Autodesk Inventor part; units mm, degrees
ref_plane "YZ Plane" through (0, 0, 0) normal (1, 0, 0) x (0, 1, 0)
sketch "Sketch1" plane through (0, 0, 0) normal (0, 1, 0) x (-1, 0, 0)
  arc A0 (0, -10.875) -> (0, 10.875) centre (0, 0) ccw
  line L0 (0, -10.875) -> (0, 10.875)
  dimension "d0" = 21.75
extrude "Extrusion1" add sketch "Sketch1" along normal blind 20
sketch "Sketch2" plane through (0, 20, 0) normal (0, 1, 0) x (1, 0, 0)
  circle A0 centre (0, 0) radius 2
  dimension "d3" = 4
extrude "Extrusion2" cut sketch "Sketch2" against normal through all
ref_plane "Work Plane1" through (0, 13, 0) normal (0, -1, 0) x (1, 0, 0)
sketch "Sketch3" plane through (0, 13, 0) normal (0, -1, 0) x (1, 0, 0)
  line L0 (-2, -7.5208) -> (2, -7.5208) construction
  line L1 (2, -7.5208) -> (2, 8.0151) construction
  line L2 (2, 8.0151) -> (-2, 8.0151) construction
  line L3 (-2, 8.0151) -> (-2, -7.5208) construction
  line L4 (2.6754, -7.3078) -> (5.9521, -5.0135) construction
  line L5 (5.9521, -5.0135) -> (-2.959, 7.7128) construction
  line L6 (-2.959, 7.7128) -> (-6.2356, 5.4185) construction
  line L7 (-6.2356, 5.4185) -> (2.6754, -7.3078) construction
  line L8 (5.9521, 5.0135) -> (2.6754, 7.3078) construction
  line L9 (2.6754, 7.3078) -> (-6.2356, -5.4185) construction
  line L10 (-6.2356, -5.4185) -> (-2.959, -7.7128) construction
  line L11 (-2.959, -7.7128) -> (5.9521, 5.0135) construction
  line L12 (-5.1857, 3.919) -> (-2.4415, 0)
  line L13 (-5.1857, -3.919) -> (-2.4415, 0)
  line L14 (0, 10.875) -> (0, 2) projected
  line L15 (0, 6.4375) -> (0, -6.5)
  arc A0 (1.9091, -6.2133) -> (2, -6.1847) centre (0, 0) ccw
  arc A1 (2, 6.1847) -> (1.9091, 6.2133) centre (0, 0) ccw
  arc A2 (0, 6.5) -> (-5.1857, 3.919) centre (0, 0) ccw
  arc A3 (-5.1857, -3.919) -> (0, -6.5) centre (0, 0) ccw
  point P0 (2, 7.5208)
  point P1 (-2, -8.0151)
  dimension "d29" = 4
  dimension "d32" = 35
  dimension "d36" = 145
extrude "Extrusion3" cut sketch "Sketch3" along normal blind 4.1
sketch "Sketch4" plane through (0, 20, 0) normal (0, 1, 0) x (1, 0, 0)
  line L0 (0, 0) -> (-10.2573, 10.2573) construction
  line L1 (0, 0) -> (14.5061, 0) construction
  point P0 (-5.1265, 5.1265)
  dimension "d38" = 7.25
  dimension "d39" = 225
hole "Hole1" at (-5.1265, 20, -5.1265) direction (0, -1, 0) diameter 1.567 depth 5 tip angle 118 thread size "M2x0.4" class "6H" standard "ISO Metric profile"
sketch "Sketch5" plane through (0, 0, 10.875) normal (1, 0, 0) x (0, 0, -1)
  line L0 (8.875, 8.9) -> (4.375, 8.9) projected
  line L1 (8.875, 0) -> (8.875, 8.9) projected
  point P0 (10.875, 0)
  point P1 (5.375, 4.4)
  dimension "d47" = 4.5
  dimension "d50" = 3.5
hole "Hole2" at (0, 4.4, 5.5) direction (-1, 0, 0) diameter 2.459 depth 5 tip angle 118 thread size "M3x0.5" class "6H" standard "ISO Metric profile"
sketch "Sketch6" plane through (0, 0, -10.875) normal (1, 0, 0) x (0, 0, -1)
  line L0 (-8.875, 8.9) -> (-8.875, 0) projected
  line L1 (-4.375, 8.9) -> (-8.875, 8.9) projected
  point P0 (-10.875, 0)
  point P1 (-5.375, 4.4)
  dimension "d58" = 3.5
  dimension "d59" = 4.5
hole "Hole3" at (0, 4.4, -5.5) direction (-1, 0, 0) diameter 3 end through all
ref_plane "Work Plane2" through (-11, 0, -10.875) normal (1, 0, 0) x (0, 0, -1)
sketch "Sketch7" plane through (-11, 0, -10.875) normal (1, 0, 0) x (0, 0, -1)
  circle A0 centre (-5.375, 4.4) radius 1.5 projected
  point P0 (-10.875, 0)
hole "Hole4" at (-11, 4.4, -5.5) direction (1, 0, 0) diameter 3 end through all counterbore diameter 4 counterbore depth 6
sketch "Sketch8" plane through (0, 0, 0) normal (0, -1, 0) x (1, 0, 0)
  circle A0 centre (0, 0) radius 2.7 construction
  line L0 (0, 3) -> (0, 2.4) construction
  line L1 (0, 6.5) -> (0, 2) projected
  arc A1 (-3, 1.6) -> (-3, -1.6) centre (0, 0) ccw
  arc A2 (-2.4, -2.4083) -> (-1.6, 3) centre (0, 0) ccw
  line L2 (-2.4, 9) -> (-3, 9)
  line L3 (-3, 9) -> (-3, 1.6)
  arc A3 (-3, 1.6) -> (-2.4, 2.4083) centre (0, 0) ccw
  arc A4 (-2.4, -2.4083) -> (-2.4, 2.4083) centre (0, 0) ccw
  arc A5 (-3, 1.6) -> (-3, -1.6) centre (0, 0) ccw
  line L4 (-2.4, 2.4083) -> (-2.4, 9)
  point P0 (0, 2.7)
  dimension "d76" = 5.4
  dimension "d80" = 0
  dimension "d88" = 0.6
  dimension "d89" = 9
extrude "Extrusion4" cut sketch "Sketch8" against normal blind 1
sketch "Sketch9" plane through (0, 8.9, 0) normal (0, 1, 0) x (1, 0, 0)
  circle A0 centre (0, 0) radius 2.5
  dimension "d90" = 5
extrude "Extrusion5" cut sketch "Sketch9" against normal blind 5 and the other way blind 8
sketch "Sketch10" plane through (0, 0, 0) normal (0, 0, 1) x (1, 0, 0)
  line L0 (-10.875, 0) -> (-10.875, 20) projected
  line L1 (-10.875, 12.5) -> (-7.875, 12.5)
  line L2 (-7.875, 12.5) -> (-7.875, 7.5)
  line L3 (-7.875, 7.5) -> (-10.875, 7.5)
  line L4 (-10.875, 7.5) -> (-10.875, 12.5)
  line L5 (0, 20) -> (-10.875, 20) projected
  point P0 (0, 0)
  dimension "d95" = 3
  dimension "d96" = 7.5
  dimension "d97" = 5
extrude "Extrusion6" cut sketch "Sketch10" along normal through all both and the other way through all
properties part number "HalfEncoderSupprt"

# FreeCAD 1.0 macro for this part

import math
import FreeCAD as App
import Part
import Sketcher

V = App.Vector
Q = App.Units.Quantity

doc = App.newDocument("Part")
body = doc.addObject("PartDesign::Body", "Body")

# Sketch on XZ plane
sketch1 = doc.addObject("Sketcher::SketchObject", "Sketch")
body.addObject(sketch1)
sketch1.AttachmentSupport = (doc.XZ_Plane, [""])
sketch1.MapMode = "FlatFace"
sketch1.addGeometry(Part.LineSegment(V(0, 11, 0), V(0, -11, 0)), False)
sketch1.addGeometry(Part.ArcOfCircle(Part.Circle(V(0, 0, 0), V(0, 0, 1), 11), math.radians(90), math.radians(270)), False)
sketch1.addConstraint(Sketcher.Constraint("Coincident", 0, 1, 1, 1))
sketch1.addConstraint(Sketcher.Constraint("Coincident", 1, 2, 0, 2))
sketch1.addConstraint(Sketcher.Constraint("Vertical", 0))
sketch1.addConstraint(Sketcher.Constraint("Coincident", 1, 3, -1, 1))
sketch1.addConstraint(Sketcher.Constraint("PointOnObject", 0, 1, -2))
sketch1.addConstraint(Sketcher.Constraint("Radius", 1, 10.875))
pad1 = doc.addObject("PartDesign::Pad", "Pad")
body.addObject(pad1)
pad1.Profile = sketch1
pad1.Length = 20
pad1.Reversed = True

# Sketch on XZ plane
sketch2 = doc.addObject("Sketcher::SketchObject", "Sketch001")
body.addObject(sketch2)
sketch2.AttachmentSupport = (doc.XZ_Plane, [""])
sketch2.MapMode = "FlatFace"
sketch2.AttachmentOffset = App.Placement(V(0, 0, -20), App.Rotation())
sketch2.addGeometry(Part.Circle(V(0, 0, 0), V(0, 0, 1), 2), False)
sketch2.addConstraint(Sketcher.Constraint("Coincident", 0, 3, -1, 1))
sketch2.addConstraint(Sketcher.Constraint("Diameter", 0, 4.0))
pocket1 = doc.addObject("PartDesign::Pocket", "Pocket")
body.addObject(pocket1)
pocket1.Profile = sketch2
pocket1.Type = "ThroughAll"
pocket1.Reversed = True

# Sketch on XZ plane
sketch3 = doc.addObject("Sketcher::SketchObject", "Sketch002")
body.addObject(sketch3)
sketch3.AttachmentSupport = (doc.XZ_Plane, [""])
sketch3.MapMode = "FlatFace"
sketch3.AttachmentOffset = App.Placement(V(0, 0, -13), App.Rotation())
sketch3.addGeometry(Part.ArcOfCircle(Part.Circle(V(0, 0, 0), V(0, 0, 1), 6.5), math.radians(90), math.radians(143)), False)
sketch3.addGeometry(Part.LineSegment(V(-5.2, 3.9, 0), V(-2.4, 0, 0)), False)
sketch3.addGeometry(Part.LineSegment(V(-2.4, 0, 0), V(-5.2, -3.9, 0)), False)
sketch3.addGeometry(Part.ArcOfCircle(Part.Circle(V(0, 0, 0), V(0, 0, 1), 6.5), math.radians(-143), math.radians(-90)), False)
sketch3.addGeometry(Part.LineSegment(V(0, -6.5, 0), V(0, 6.5, 0)), False)
sketch3.addConstraint(Sketcher.Constraint("Coincident", 0, 2, 1, 1))
sketch3.addConstraint(Sketcher.Constraint("Coincident", 1, 2, 2, 1))
sketch3.addConstraint(Sketcher.Constraint("Coincident", 2, 2, 3, 1))
sketch3.addConstraint(Sketcher.Constraint("Coincident", 3, 2, 4, 1))
sketch3.addConstraint(Sketcher.Constraint("Coincident", 4, 2, 0, 1))
sketch3.addConstraint(Sketcher.Constraint("Vertical", 4))
sketch3.addConstraint(Sketcher.Constraint("Coincident", 0, 3, -1, 1))
sketch3.addConstraint(Sketcher.Constraint("Coincident", 3, 3, -1, 1))
sketch3.addConstraint(Sketcher.Constraint("Equal", 0, 3))
sketch3.addConstraint(Sketcher.Constraint("PointOnObject", 1, 2, -1))
sketch3.addConstraint(Sketcher.Constraint("PointOnObject", 3, 2, -2))
sketch3.addConstraint(Sketcher.Constraint("Vertical", 0, 2, 2, 2))
sketch3.addConstraint(Sketcher.Constraint("Radius", 0, 6.5))
sketch3.addConstraint(Sketcher.Constraint("Angle", 1, Q("-54.9991 deg")))
sketch3.addConstraint(Sketcher.Constraint("DistanceY", -1, 1, 0, 2, 3.919))
pocket2 = doc.addObject("PartDesign::Pocket", "Pocket001")
body.addObject(pocket2)
pocket2.Profile = sketch3
pocket2.Length = 4.1
pocket2.Reversed = True

# Sketch on XZ plane
sketch4 = doc.addObject("Sketcher::SketchObject", "Sketch003")
body.addObject(sketch4)
sketch4.AttachmentSupport = (doc.XZ_Plane, [""])
sketch4.MapMode = "FlatFace"
sketch4.AttachmentOffset = App.Placement(V(0, 0, -20), App.Rotation())
sketch4.addGeometry(Part.Circle(V(-5.1, -5.1, 0), V(0, 0, 1), 0.8), False)
sketch4.addConstraint(Sketcher.Constraint("Diameter", 0, 1.567))
sketch4.addConstraint(Sketcher.Constraint("DistanceX", 0, 3, -1, 1, 5.1265))
sketch4.addConstraint(Sketcher.Constraint("DistanceY", 0, 3, -1, 1, 5.1265))
doc.recompute()
hole = doc.addObject("PartDesign::Hole", "Hole")
body.addObject(hole)
hole.Profile = sketch4
hole.ThreadType = "None"
hole.Diameter = 1.567
hole.DepthType = "Dimension"
hole.Depth = 5
hole.DrillPoint = "Angled"
hole.DrillPointAngle = 118
hole.Reversed = True

# Sketch on YZ plane
sketch5 = doc.addObject("Sketcher::SketchObject", "Sketch004")
body.addObject(sketch5)
sketch5.AttachmentSupport = (doc.YZ_Plane, [""])
sketch5.MapMode = "FlatFace"
sketch5.addGeometry(Part.Circle(V(4.4, 5.5, 0), V(0, 0, 1), 1.2), False)
sketch5.addConstraint(Sketcher.Constraint("Diameter", 0, 2.459))
sketch5.addConstraint(Sketcher.Constraint("DistanceX", -1, 1, 0, 3, 4.4))
sketch5.addConstraint(Sketcher.Constraint("DistanceY", -1, 1, 0, 3, 5.5))
doc.recompute()
hole2 = doc.addObject("PartDesign::Hole", "Hole001")
body.addObject(hole2)
hole2.Profile = sketch5
hole2.ThreadType = "None"
hole2.Diameter = 2.459
hole2.DepthType = "Dimension"
hole2.Depth = 5
hole2.DrillPoint = "Angled"
hole2.DrillPointAngle = 118

# Sketch on YZ plane
sketch6 = doc.addObject("Sketcher::SketchObject", "Sketch005")
body.addObject(sketch6)
sketch6.AttachmentSupport = (doc.YZ_Plane, [""])
sketch6.MapMode = "FlatFace"
sketch6.addGeometry(Part.Circle(V(4.4, -5.5, 0), V(0, 0, 1), 1.5), False)
sketch6.addConstraint(Sketcher.Constraint("Diameter", 0, 3.0))
sketch6.addConstraint(Sketcher.Constraint("DistanceX", -1, 1, 0, 3, 4.4))
sketch6.addConstraint(Sketcher.Constraint("DistanceY", 0, 3, -1, 1, 5.5))
doc.recompute()
hole3 = doc.addObject("PartDesign::Hole", "Hole002")
body.addObject(hole3)
hole3.Profile = sketch6
hole3.ThreadType = "None"
hole3.Diameter = 3
hole3.DepthType = "ThroughAll"

# Sketch on YZ plane
sketch7 = doc.addObject("Sketcher::SketchObject", "Sketch006")
body.addObject(sketch7)
sketch7.AttachmentSupport = (doc.YZ_Plane, [""])
sketch7.MapMode = "FlatFace"
sketch7.AttachmentOffset = App.Placement(V(0, 0, -11), App.Rotation())
sketch7.addGeometry(Part.Circle(V(4.4, -5.5, 0), V(0, 0, 1), 1.5), False)
sketch7.addConstraint(Sketcher.Constraint("Diameter", 0, 3.0))
sketch7.addConstraint(Sketcher.Constraint("DistanceX", -1, 1, 0, 3, 4.4))
sketch7.addConstraint(Sketcher.Constraint("DistanceY", 0, 3, -1, 1, 5.5))
doc.recompute()
hole4 = doc.addObject("PartDesign::Hole", "Hole003")
body.addObject(hole4)
hole4.Profile = sketch7
hole4.ThreadType = "None"
hole4.Diameter = 3
hole4.DepthType = "ThroughAll"
hole4.HoleCutType = "Counterbore"
hole4.HoleCutDiameter = 4
hole4.HoleCutDepth = 6
hole4.Reversed = True

# Sketch on XZ plane
sketch8 = doc.addObject("Sketcher::SketchObject", "Sketch007")
body.addObject(sketch8)
sketch8.AttachmentSupport = (doc.XZ_Plane, [""])
sketch8.MapMode = "FlatFace"
sketch8.addGeometry(Part.LineSegment(V(-3, 9, 0), V(-3, 1.6, 0)), False)
sketch8.addGeometry(Part.ArcOfCircle(Part.Circle(V(0, 0, 0), V(0, 0, 1), 3.4), math.radians(152), math.radians(208)), False)
sketch8.addGeometry(Part.ArcOfCircle(Part.Circle(V(0, 0, 0), V(0, 0, 1), 3.4), math.radians(-151.93), math.radians(-134.9)), False)
sketch8.addGeometry(Part.ArcOfCircle(Part.Circle(V(0, 0, 0), V(0, 0, 1), 3.4), math.radians(-135), math.radians(118)), False)
sketch8.addGeometry(Part.ArcOfCircle(Part.Circle(V(0, 0, 0), V(0, 0, 1), 3.4), math.radians(118.07), math.radians(134.9)), False)
sketch8.addGeometry(Part.LineSegment(V(-2.4, 2.4, 0), V(-2.4, 9, 0)), False)
sketch8.addGeometry(Part.LineSegment(V(-2.4, 9, 0), V(-3, 9, 0)), False)
sketch8.addConstraint(Sketcher.Constraint("Coincident", 0, 2, 1, 1))
sketch8.addConstraint(Sketcher.Constraint("Tangent", 1, 2, 2, 1))
sketch8.addConstraint(Sketcher.Constraint("Tangent", 2, 2, 3, 1))
sketch8.addConstraint(Sketcher.Constraint("Tangent", 3, 2, 4, 1))
sketch8.addConstraint(Sketcher.Constraint("Coincident", 4, 2, 5, 1))
sketch8.addConstraint(Sketcher.Constraint("Coincident", 5, 2, 6, 1))
sketch8.addConstraint(Sketcher.Constraint("Coincident", 6, 2, 0, 1))
sketch8.addConstraint(Sketcher.Constraint("Vertical", 0))
sketch8.addConstraint(Sketcher.Constraint("Vertical", 5))
sketch8.addConstraint(Sketcher.Constraint("Horizontal", 6))
sketch8.addConstraint(Sketcher.Constraint("Coincident", 1, 3, -1, 1))
sketch8.addConstraint(Sketcher.Constraint("Coincident", 3, 3, -1, 1))
sketch8.addConstraint(Sketcher.Constraint("Equal", 3, 4))
sketch8.addConstraint(Sketcher.Constraint("Vertical", 0, 2, 1, 2))
sketch8.addConstraint(Sketcher.Constraint("Vertical", 2, 2, 4, 2))
sketch8.addConstraint(Sketcher.Constraint("DistanceX", 6, 2, 6, 1, 0.6))
sketch8.addConstraint(Sketcher.Constraint("DistanceY", -1, 1, 5, 2, 9.0))
sketch8.addConstraint(Sketcher.Constraint("Radius", 1, 3.4))
sketch8.addConstraint(Sketcher.Constraint("DistanceY", 0, 2, 0, 1, 7.4))
sketch8.addConstraint(Sketcher.Constraint("DistanceY", -1, 1, 3, 2, 3.0))
pocket3 = doc.addObject("PartDesign::Pocket", "Pocket002")
body.addObject(pocket3)
pocket3.Profile = sketch8
pocket3.Length = 1

# Sketch on XZ plane
sketch9 = doc.addObject("Sketcher::SketchObject", "Sketch008")
body.addObject(sketch9)
sketch9.AttachmentSupport = (doc.XZ_Plane, [""])
sketch9.MapMode = "FlatFace"
sketch9.AttachmentOffset = App.Placement(V(0, 0, -8.9), App.Rotation())
sketch9.addGeometry(Part.Circle(V(0, 0, 0), V(0, 0, 1), 2.5), False)
sketch9.addConstraint(Sketcher.Constraint("Coincident", 0, 3, -1, 1))
sketch9.addConstraint(Sketcher.Constraint("Diameter", 0, 5.0))
pocket4 = doc.addObject("PartDesign::Pocket", "Pocket003")
body.addObject(pocket4)
pocket4.Profile = sketch9
pocket4.Type = "TwoLengths"
pocket4.Length = 5
pocket4.Length2 = 8
pocket4.Reversed = True

# Sketch on XY plane
sketch10 = doc.addObject("Sketcher::SketchObject", "Sketch009")
body.addObject(sketch10)
sketch10.AttachmentSupport = (doc.XY_Plane, [""])
sketch10.MapMode = "FlatFace"
sketch10.addGeometry(Part.LineSegment(V(-10.9, 12.5, 0), V(-10.9, 7.5, 0)), False)
sketch10.addGeometry(Part.LineSegment(V(-10.9, 7.5, 0), V(-7.9, 7.5, 0)), False)
sketch10.addGeometry(Part.LineSegment(V(-7.9, 7.5, 0), V(-7.9, 12.5, 0)), False)
sketch10.addGeometry(Part.LineSegment(V(-7.9, 12.5, 0), V(-10.9, 12.5, 0)), False)
sketch10.addConstraint(Sketcher.Constraint("Coincident", 0, 2, 1, 1))
sketch10.addConstraint(Sketcher.Constraint("Coincident", 1, 2, 2, 1))
sketch10.addConstraint(Sketcher.Constraint("Coincident", 2, 2, 3, 1))
sketch10.addConstraint(Sketcher.Constraint("Coincident", 3, 2, 0, 1))
sketch10.addConstraint(Sketcher.Constraint("Vertical", 0))
sketch10.addConstraint(Sketcher.Constraint("Horizontal", 1))
sketch10.addConstraint(Sketcher.Constraint("Vertical", 2))
sketch10.addConstraint(Sketcher.Constraint("Horizontal", 3))
sketch10.addConstraint(Sketcher.Constraint("DistanceX", 1, 1, 1, 2, 3.0))
sketch10.addConstraint(Sketcher.Constraint("DistanceY", 0, 2, 0, 1, 5.0))
sketch10.addConstraint(Sketcher.Constraint("DistanceY", -1, 1, 0, 2, 7.5))
sketch10.addConstraint(Sketcher.Constraint("DistanceX", 0, 2, -1, 1, 10.875))
pocket5 = doc.addObject("PartDesign::Pocket", "Pocket004")
body.addObject(pocket5)
pocket5.Profile = sketch10
pocket5.Type = "ThroughAll"
pocket5.Midplane = True

doc.recompute()
